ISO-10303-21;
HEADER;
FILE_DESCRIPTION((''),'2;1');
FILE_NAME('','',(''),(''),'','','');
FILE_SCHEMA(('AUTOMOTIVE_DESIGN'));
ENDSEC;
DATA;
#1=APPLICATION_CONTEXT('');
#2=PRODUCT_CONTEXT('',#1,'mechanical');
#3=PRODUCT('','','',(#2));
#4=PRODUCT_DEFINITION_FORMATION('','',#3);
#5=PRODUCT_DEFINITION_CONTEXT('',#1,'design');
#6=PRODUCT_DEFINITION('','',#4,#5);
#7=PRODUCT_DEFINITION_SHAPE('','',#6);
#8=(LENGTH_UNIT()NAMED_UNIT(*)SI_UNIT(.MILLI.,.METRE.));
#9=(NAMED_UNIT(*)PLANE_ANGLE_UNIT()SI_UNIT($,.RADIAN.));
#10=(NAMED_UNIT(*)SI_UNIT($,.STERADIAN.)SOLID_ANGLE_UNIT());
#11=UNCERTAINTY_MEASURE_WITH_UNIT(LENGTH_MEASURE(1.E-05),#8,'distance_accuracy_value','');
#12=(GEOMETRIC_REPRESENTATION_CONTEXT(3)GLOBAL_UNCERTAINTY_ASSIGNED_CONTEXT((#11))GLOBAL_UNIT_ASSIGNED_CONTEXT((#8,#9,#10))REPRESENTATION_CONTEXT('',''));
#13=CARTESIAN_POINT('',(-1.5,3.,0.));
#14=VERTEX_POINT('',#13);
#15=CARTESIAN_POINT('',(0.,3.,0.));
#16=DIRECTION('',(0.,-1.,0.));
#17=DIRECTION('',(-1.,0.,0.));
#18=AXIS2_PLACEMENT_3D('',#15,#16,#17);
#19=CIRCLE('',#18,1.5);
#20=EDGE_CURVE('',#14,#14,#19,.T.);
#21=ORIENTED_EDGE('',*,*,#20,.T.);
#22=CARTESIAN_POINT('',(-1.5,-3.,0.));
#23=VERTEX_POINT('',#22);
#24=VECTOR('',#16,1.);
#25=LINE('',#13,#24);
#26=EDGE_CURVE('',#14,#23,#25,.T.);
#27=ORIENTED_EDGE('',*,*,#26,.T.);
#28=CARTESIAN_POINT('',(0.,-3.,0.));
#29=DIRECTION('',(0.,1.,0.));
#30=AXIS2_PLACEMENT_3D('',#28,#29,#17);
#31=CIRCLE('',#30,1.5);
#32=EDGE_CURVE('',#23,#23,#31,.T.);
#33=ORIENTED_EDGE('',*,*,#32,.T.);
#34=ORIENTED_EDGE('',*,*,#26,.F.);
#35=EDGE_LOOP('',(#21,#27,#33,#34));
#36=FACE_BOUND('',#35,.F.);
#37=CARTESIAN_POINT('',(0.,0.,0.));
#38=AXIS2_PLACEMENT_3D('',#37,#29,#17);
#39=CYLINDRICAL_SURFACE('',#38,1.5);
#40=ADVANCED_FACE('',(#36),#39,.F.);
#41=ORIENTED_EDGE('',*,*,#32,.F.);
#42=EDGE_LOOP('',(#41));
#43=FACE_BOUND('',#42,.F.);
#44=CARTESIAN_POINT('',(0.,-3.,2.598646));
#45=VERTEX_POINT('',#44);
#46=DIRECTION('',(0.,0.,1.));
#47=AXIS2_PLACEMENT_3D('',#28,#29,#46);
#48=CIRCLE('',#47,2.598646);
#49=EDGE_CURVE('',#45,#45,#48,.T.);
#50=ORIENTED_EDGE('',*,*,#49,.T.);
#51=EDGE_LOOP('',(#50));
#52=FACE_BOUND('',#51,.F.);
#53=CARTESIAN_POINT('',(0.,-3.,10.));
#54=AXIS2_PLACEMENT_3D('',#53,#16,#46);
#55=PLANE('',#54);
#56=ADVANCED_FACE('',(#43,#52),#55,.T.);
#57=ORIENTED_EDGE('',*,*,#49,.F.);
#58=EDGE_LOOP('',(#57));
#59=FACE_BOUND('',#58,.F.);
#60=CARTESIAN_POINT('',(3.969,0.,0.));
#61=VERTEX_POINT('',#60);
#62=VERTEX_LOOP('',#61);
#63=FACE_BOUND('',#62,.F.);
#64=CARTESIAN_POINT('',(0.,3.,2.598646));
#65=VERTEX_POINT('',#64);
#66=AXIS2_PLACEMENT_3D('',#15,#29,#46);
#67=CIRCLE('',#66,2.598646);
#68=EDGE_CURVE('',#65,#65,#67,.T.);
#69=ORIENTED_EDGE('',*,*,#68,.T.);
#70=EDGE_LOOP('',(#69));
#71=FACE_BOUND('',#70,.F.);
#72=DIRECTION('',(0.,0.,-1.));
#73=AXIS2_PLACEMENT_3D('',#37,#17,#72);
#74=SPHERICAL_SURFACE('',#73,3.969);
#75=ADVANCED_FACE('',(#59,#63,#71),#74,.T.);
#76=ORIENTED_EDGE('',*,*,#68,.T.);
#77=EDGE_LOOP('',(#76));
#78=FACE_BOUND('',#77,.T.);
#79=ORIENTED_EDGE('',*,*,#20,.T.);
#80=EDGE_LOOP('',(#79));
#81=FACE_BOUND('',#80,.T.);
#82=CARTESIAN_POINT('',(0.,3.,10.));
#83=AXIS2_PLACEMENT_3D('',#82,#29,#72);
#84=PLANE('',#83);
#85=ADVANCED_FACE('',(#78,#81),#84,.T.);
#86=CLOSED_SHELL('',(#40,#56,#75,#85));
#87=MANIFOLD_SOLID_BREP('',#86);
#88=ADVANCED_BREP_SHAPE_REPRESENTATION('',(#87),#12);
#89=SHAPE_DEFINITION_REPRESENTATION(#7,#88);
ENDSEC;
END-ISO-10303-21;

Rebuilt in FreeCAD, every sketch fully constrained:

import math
import FreeCAD as App
import Part
import Sketcher

V = App.Vector
Q = App.Units.Quantity


def add_polygon(sketch, points):
    """Adds a closed chain of lines whose ends are joined by coincident constraints."""
    first, n = sketch.GeometryCount, len(points)
    for a, b in zip(points, points[1:] + points[:1]):
        sketch.addGeometry(Part.LineSegment(App.Vector(*a, 0), App.Vector(*b, 0)), False)
    for i in range(n):
        sketch.addConstraint(Sketcher.Constraint("Coincident", first + i, 2, first + (i + 1) % n, 1))

doc = App.newDocument("Part")
body = doc.addObject("PartDesign::Body", "Body")

sketch1 = body.newObject("Sketcher::SketchObject", "Sketch")
sketch1.AttachmentSupport = (doc.getObject("XZ_Plane"), [""])
sketch1.MapMode = "FlatFace"
sketch1.addGeometry([
    Part.ArcOfCircle(Part.Circle(V(0, 0, 0), V(0, 0, 1), 4), math.radians(180), math.radians(360)),
    Part.LineSegment(V(-4, 0, 0), V(4, 0, 0)),
], False)
sketch1.addConstraint([
    Sketcher.Constraint("Coincident", 0, 1, 1, 1),
    Sketcher.Constraint("Coincident", 1, 2, 0, 2),
    Sketcher.Constraint("Horizontal", 1),
    Sketcher.Constraint("Coincident", 0, 3, -1, 1),
    Sketcher.Constraint("PointOnObject", 0, 1, -1),
    Sketcher.Constraint("Radius", 0, Q("3.969 mm")),
])
revolution = body.newObject("PartDesign::Revolution", "Revolution")
revolution.Profile = sketch1
revolution.ReferenceAxis = (sketch1, ["H_Axis"])
revolution.Angle = 360

sketch2 = body.newObject("Sketcher::SketchObject", "Sketch001")
sketch2.AttachmentSupport = (doc.getObject("XZ_Plane"), [""])
sketch2.MapMode = "FlatFace"
sketch2.addGeometry(Part.Circle(V(0, 0, 0), V(0, 0, 1), 1.5), False)
sketch2.addConstraint([
    Sketcher.Constraint("Coincident", 0, 3, -1, 1),
    Sketcher.Constraint("Diameter", 0, Q("3 mm")),
])
pocket1 = body.newObject("PartDesign::Pocket", "Pocket")
pocket1.Profile = sketch2
pocket1.Length = 10
pocket1.Midplane = True

sketch3 = body.newObject("Sketcher::SketchObject", "Sketch002")
sketch3.AttachmentSupport = (doc.getObject("YZ_Plane"), [""])
sketch3.MapMode = "FlatFace"
add_polygon(sketch3, [(13, -10), (13, 10), (3, 10), (3, -10)])
sketch3.addConstraint([
    Sketcher.Constraint("Vertical", 0),
    Sketcher.Constraint("Horizontal", 1),
    Sketcher.Constraint("Vertical", 2),
    Sketcher.Constraint("Horizontal", 3),
    Sketcher.Constraint("DistanceX", 1, 2, 1, 1, Q("10 mm")),
    Sketcher.Constraint("DistanceY", 0, 1, 0, 2, Q("20 mm")),
    Sketcher.Constraint("DistanceY", -1, 1, 0, 2, Q("10 mm")),
    Sketcher.Constraint("DistanceX", -1, 1, 1, 2, Q("3 mm")),
])
pocket2 = body.newObject("PartDesign::Pocket", "Pocket001")
pocket2.Profile = sketch3
pocket2.Type = "ThroughAll"
pocket2.Midplane = True
doc.recompute()

mirrored = body.newObject("PartDesign::Mirrored", "Mirrored")
mirrored.Originals = [pocket2]
mirrored.MirrorPlane = (doc.getObject("XZ_Plane"), [""])
body.Tip = mirrored

doc.recompute()
